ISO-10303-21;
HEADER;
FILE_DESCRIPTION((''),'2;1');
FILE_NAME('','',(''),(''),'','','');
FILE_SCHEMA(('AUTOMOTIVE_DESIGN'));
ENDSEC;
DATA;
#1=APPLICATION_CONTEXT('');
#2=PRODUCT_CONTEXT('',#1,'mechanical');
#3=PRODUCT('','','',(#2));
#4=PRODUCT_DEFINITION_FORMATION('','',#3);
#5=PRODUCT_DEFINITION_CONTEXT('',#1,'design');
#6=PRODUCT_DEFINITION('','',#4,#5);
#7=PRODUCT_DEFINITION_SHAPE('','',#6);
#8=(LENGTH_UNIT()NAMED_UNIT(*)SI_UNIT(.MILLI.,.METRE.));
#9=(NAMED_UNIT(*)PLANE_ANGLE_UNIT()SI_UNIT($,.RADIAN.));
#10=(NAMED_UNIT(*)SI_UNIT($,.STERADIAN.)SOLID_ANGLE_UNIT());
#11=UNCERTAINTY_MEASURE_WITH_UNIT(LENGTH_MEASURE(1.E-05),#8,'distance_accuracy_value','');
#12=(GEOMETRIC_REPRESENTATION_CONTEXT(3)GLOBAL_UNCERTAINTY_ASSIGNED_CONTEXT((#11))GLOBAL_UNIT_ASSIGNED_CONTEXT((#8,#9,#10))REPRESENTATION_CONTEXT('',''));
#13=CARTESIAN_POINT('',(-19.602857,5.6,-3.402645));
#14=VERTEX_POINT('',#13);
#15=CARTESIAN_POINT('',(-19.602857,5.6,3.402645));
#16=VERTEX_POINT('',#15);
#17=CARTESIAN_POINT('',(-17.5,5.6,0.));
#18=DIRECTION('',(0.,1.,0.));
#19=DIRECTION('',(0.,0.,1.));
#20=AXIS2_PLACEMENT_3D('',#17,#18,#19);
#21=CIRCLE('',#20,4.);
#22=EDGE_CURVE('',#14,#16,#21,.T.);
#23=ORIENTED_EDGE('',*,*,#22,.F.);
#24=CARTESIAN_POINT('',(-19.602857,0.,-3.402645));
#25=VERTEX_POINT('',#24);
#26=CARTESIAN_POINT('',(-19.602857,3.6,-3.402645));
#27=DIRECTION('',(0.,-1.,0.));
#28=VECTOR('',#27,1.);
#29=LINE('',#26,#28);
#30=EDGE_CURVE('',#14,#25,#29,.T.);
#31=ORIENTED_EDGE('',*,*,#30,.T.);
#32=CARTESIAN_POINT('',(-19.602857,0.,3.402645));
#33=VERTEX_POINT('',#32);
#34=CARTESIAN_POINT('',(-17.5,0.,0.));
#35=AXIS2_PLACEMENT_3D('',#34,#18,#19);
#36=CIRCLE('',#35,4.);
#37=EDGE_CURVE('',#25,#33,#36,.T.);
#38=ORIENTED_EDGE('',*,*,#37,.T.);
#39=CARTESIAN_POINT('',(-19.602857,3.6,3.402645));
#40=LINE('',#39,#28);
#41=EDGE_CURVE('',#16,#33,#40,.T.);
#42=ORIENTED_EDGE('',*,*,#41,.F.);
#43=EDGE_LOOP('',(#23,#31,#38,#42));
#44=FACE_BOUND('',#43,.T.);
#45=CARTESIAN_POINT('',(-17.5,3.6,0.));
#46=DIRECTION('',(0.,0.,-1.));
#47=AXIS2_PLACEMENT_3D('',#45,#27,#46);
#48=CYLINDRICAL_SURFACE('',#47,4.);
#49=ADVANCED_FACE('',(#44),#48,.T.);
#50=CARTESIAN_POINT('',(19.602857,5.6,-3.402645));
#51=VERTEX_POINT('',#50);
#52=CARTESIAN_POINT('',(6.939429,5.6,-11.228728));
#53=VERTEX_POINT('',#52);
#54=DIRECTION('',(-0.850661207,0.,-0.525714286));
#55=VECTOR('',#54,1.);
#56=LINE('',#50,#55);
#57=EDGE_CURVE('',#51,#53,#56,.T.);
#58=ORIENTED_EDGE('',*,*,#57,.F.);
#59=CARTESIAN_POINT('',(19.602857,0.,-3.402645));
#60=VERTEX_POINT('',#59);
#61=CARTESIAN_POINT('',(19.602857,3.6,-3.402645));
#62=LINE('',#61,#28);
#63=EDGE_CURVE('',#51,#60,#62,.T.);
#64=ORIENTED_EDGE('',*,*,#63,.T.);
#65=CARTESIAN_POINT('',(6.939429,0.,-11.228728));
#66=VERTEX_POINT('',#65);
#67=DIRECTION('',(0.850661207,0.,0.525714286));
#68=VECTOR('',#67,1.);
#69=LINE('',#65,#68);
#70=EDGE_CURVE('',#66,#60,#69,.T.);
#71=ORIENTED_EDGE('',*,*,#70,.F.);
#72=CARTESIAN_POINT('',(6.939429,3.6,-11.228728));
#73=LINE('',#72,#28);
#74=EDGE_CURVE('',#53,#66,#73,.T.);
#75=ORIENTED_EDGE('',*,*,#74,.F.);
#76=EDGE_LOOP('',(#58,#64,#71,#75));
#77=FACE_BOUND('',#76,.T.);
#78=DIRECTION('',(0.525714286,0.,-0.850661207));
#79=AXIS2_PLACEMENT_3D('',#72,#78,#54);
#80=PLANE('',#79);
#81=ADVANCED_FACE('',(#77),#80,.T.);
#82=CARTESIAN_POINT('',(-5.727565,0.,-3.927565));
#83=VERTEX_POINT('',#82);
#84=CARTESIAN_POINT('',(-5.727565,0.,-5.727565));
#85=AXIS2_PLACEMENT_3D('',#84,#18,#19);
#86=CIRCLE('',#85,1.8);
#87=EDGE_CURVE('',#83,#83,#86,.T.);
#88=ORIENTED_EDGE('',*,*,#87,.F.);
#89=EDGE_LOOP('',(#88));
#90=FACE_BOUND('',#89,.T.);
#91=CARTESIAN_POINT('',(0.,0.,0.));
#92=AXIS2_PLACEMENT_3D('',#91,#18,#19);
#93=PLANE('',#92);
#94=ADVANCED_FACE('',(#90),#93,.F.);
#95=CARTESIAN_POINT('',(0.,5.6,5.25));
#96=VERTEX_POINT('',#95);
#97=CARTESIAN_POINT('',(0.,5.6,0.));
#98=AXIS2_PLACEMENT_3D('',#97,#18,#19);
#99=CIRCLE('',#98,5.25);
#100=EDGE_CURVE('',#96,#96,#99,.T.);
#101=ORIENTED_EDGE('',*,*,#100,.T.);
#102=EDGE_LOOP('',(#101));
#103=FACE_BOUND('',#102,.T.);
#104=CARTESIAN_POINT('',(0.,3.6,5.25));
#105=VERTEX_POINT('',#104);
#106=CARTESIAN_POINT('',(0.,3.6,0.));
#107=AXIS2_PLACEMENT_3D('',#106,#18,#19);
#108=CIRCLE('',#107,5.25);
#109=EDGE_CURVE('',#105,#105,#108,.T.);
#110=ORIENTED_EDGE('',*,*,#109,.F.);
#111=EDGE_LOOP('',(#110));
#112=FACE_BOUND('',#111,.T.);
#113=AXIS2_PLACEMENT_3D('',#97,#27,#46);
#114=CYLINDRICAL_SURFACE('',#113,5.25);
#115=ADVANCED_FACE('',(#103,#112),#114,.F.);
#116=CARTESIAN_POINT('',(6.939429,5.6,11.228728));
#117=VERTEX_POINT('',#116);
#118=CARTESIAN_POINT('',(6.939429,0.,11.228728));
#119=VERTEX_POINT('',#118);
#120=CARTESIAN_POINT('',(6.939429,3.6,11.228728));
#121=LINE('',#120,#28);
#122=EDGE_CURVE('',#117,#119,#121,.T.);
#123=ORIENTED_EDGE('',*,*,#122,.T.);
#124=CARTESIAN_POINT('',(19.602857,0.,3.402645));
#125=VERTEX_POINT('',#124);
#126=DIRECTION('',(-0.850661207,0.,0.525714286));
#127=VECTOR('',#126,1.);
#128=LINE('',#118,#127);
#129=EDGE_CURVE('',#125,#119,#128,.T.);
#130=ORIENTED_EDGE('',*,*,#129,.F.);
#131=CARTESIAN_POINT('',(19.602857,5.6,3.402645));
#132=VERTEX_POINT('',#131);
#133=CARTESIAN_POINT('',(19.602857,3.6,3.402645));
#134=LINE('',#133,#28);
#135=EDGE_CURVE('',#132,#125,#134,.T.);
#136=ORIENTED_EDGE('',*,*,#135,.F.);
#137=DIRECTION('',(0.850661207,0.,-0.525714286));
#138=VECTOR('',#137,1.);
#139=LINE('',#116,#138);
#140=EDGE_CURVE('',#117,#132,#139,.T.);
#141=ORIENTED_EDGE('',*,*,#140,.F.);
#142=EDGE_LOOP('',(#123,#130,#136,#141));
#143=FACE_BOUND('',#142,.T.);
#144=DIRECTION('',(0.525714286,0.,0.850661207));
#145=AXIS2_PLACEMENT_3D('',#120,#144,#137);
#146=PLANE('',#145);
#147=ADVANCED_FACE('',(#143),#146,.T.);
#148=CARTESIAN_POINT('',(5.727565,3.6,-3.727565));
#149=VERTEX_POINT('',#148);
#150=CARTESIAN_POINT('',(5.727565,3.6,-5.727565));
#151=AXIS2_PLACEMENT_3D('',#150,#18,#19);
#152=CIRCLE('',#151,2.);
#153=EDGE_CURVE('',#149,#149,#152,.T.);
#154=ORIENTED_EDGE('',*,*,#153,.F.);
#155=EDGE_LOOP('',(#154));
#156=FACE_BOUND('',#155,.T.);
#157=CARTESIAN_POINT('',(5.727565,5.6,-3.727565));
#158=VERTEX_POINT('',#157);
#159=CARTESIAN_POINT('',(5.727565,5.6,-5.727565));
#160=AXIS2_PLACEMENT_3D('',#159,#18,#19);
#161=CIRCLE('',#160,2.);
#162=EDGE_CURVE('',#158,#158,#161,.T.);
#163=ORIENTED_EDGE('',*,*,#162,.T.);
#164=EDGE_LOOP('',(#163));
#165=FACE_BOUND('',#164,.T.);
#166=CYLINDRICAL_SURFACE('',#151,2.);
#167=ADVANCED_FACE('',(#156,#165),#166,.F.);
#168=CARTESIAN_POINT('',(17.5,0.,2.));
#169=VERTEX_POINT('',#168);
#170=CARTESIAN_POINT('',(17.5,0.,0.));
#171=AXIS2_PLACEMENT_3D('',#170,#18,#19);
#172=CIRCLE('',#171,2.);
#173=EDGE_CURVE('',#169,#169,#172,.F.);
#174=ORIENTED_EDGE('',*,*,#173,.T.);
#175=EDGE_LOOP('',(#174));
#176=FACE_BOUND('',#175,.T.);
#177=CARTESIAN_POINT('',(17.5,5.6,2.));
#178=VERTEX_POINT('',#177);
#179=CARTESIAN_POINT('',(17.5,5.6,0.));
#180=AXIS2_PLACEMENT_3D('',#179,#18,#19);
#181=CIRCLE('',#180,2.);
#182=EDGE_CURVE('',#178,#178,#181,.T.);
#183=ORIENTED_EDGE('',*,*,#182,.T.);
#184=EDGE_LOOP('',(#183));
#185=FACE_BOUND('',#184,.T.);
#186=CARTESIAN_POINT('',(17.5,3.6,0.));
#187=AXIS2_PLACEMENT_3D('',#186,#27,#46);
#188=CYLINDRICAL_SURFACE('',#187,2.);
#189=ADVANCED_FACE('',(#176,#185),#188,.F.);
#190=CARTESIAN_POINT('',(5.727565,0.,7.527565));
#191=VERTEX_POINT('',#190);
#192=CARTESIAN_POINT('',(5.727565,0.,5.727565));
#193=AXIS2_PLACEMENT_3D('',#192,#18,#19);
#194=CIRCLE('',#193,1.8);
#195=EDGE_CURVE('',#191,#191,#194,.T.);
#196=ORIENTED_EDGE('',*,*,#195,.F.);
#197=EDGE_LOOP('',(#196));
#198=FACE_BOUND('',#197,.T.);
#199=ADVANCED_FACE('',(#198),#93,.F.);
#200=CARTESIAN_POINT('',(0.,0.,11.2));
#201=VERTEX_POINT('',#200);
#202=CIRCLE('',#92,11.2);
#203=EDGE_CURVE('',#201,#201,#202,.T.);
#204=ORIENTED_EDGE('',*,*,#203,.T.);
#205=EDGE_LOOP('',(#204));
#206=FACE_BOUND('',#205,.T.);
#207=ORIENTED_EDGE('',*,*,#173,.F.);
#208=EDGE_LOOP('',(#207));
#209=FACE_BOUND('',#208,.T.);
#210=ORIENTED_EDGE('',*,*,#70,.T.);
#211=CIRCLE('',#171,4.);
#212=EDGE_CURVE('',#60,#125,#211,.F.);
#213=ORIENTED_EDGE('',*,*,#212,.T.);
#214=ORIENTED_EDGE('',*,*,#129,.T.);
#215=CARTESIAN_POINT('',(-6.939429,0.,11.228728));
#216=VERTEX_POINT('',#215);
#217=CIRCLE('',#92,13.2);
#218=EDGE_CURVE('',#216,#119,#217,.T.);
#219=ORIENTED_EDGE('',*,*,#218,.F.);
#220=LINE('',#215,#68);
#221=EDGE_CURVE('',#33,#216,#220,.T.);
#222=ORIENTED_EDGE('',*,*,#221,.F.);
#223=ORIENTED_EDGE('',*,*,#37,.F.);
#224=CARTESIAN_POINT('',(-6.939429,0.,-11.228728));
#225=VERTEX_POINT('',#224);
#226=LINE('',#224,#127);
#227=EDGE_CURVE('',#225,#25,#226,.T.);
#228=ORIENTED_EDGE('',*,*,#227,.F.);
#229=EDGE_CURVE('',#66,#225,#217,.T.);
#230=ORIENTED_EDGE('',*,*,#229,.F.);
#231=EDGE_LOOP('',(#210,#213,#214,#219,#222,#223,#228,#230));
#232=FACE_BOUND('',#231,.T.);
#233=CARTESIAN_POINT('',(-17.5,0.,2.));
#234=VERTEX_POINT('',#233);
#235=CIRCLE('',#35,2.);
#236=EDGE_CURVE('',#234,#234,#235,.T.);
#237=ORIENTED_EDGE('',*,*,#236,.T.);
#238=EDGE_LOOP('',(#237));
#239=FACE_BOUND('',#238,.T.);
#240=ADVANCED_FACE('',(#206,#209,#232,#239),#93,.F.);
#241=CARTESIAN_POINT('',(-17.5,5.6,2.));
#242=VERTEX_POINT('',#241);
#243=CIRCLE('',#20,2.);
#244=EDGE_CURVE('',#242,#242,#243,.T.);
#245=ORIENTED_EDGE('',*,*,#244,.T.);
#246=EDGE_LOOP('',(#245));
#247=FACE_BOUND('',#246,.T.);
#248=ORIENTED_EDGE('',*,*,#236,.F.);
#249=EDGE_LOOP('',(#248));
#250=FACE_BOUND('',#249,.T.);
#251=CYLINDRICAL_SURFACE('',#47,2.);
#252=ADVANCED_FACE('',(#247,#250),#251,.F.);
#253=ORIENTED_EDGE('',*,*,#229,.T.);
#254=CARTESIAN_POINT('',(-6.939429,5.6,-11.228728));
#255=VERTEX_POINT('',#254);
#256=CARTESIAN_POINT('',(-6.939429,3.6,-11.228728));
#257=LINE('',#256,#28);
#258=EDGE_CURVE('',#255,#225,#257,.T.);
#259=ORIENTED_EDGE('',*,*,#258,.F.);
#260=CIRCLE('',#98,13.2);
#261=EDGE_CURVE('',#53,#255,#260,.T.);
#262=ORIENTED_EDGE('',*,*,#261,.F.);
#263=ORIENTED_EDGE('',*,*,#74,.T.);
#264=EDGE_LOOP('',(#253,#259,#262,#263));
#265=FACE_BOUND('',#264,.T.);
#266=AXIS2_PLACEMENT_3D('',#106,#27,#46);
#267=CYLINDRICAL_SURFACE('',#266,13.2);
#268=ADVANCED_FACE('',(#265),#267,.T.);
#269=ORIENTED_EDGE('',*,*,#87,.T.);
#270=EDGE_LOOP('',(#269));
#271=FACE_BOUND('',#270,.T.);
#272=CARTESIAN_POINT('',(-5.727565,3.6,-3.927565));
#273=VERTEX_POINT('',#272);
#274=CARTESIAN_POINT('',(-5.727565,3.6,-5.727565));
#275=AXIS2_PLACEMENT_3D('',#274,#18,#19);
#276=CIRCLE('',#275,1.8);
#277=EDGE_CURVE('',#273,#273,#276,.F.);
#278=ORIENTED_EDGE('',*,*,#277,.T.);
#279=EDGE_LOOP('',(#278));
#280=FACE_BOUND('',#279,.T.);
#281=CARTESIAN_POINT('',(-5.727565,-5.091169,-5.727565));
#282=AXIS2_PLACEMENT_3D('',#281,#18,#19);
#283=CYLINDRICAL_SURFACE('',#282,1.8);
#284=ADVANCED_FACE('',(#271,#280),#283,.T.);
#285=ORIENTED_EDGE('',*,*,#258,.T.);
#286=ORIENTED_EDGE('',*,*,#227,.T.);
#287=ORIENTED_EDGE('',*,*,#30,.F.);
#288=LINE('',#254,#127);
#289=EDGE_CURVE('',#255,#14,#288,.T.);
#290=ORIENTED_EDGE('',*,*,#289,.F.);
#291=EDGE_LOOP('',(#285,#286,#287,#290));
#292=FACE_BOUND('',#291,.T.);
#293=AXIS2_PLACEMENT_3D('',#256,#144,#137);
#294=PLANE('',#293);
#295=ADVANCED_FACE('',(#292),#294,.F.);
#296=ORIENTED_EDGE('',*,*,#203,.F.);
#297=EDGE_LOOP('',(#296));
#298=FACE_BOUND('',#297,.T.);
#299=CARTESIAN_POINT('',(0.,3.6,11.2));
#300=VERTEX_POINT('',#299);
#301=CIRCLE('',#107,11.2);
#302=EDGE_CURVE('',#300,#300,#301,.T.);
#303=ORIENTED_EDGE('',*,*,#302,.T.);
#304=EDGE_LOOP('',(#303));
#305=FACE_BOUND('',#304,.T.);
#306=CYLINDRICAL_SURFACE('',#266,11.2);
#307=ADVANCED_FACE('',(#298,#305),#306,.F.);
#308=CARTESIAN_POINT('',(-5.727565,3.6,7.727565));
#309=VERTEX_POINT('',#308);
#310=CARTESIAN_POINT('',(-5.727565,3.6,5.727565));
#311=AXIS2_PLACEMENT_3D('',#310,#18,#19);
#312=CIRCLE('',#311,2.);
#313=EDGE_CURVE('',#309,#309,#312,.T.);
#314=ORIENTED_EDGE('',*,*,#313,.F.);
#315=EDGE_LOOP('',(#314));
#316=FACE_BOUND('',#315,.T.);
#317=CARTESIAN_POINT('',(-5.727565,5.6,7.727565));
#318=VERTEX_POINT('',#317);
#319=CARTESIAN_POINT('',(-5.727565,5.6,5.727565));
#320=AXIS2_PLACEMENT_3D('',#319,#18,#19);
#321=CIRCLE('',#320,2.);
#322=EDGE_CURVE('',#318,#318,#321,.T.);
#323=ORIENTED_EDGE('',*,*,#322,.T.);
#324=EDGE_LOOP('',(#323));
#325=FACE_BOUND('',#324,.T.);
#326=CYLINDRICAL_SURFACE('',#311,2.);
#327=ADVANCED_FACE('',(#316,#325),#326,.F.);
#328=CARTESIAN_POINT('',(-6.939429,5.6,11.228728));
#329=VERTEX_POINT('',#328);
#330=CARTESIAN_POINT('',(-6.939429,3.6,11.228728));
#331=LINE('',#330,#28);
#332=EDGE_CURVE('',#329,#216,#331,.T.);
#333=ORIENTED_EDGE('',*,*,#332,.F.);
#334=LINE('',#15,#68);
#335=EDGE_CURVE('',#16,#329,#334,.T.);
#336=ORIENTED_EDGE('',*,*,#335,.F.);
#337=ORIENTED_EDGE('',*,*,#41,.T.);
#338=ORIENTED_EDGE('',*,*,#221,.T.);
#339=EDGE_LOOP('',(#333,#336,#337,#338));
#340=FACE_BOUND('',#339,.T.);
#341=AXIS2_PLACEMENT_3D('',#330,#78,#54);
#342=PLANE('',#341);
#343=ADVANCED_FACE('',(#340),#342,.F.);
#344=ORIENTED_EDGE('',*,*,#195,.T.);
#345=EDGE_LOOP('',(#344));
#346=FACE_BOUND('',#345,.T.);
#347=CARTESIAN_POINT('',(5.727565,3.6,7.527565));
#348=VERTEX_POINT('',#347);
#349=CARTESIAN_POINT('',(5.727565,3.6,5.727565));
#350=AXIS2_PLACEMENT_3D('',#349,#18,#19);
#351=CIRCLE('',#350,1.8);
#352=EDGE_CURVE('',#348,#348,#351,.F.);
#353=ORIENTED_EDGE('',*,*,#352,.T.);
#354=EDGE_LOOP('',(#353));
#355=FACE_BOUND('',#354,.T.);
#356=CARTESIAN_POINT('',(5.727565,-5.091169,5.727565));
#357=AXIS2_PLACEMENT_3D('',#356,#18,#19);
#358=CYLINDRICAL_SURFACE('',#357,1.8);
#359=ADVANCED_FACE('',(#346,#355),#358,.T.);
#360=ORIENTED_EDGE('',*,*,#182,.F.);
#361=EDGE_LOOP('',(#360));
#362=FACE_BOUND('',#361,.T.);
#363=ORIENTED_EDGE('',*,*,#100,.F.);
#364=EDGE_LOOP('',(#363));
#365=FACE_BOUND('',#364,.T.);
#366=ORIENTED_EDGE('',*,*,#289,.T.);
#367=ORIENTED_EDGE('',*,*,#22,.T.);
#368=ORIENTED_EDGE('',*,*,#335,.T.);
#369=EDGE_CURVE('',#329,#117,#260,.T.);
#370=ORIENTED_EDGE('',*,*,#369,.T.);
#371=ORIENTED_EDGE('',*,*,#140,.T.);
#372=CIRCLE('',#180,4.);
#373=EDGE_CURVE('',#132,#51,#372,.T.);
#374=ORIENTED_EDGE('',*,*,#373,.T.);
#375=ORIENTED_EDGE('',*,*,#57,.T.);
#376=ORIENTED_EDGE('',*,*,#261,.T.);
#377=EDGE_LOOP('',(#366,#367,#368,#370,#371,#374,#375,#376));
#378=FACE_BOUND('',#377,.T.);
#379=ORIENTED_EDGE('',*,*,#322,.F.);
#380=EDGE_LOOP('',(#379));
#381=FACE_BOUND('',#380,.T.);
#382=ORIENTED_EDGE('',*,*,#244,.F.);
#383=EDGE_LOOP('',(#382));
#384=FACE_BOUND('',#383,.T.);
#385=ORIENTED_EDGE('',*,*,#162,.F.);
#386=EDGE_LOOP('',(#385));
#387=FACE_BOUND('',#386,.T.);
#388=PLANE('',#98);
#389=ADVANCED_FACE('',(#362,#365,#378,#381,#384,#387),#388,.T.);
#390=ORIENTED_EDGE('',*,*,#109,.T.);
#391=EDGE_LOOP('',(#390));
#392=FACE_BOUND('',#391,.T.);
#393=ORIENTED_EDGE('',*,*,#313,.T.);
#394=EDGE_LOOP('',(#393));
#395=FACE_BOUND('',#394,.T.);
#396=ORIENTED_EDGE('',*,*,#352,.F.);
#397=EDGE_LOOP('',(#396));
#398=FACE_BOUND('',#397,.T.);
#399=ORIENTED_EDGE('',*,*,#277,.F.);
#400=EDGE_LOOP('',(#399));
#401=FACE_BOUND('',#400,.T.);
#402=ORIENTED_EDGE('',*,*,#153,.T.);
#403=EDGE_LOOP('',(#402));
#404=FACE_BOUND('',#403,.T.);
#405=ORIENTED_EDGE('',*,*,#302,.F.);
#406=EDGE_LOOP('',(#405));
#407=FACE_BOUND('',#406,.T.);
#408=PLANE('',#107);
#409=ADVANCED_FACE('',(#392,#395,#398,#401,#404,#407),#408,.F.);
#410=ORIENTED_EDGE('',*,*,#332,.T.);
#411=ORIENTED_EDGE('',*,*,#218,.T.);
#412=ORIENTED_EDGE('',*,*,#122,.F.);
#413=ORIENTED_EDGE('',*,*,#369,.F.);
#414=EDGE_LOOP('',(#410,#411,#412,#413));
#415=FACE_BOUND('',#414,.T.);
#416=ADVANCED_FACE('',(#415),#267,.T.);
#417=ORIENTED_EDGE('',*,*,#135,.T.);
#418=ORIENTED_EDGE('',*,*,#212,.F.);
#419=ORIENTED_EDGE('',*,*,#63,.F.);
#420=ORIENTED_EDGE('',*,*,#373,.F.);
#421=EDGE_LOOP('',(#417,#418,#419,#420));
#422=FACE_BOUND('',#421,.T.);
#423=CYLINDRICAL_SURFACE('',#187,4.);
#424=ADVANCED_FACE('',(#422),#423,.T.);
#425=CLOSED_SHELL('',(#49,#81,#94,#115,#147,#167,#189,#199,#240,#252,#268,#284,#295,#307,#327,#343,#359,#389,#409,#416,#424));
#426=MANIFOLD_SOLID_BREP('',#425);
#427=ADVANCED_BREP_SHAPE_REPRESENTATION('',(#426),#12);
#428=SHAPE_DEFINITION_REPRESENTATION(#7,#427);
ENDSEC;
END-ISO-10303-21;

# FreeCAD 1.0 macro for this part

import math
import FreeCAD as App
import Part
import Sketcher

doc = App.newDocument("Part")
body = doc.addObject("PartDesign::Body", "Body")

sketch1 = body.newObject("Sketcher::SketchObject", "Sketch")
sketch1.AttachmentSupport = (doc.getObject("XZ_Plane"), [""])
sketch1.MapMode = "FlatFace"
sketch1.addGeometry([
    Part.LineSegment(App.Vector(-19.6, 3.4, 0), App.Vector(-6.9, 11.2, 0)),
    Part.ArcOfCircle(Part.Circle(App.Vector(0, 0, 0), App.Vector(0, 0, 1), 13.2), math.radians(58), math.radians(122)),
    Part.LineSegment(App.Vector(6.9, 11.2, 0), App.Vector(19.6, 3.4, 0)),
    Part.ArcOfCircle(Part.Circle(App.Vector(17.5, 0, 0), App.Vector(0, 0, 1), 4), math.radians(-58), math.radians(58)),
    Part.LineSegment(App.Vector(19.6, -3.4, 0), App.Vector(6.9, -11.2, 0)),
    Part.ArcOfCircle(Part.Circle(App.Vector(0, 0, 0), App.Vector(0, 0, 1), 13.2), math.radians(-122), math.radians(-58)),
    Part.LineSegment(App.Vector(-6.9, -11.2, 0), App.Vector(-19.6, -3.4, 0)),
    Part.ArcOfCircle(Part.Circle(App.Vector(-17.5, 0, 0), App.Vector(0, 0, 1), 4), math.radians(122), math.radians(238)),
    Part.Circle(App.Vector(-17.5, 0, 0), App.Vector(0, 0, 1), 2),
    Part.Circle(App.Vector(0, 0, 0), App.Vector(0, 0, 1), 11.2),
    Part.Circle(App.Vector(17.5, 0, 0), App.Vector(0, 0, 1), 2),
], False)
sketch1.addConstraint([
    Sketcher.Constraint("Tangent", 0, 2, 1, 2),
    Sketcher.Constraint("Tangent", 1, 1, 2, 1),
    Sketcher.Constraint("Tangent", 2, 2, 3, 2),
    Sketcher.Constraint("Tangent", 3, 1, 4, 1),
    Sketcher.Constraint("Tangent", 4, 2, 5, 2),
    Sketcher.Constraint("Tangent", 5, 1, 6, 1),
    Sketcher.Constraint("Tangent", 6, 2, 7, 2),
    Sketcher.Constraint("Tangent", 7, 1, 0, 1),
    Sketcher.Constraint("Coincident", 1, 3, -1, 1),
    Sketcher.Constraint("Coincident", 5, 3, -1, 1),
    Sketcher.Constraint("Coincident", 9, 3, -1, 1),
    Sketcher.Constraint("Coincident", 8, 3, 7, 3),
    Sketcher.Constraint("Coincident", 10, 3, 3, 3),
    Sketcher.Constraint("Equal", 1, 5),
    Sketcher.Constraint("Equal", 3, 7),
    Sketcher.Constraint("Equal", 8, 10),
    Sketcher.Constraint("Symmetric", 3, 3, 7, 3, -1, 1),
    Sketcher.Constraint("PointOnObject", 3, 3, -1),
    Sketcher.Constraint("Diameter", 8, 4.0),
    Sketcher.Constraint("Radius", 3, 4.0),
    Sketcher.Constraint("Diameter", 9, 22.4),
    Sketcher.Constraint("Radius", 1, 13.2),
    Sketcher.Constraint("DistanceX", 7, 3, 3, 3, 35.0),
])
pad1 = body.newObject("PartDesign::Pad", "Pad")
pad1.Profile = sketch1
pad1.Length = 3.6
pad1.Reversed = True

sketch2 = body.newObject("Sketcher::SketchObject", "Sketch001")
sketch2.AttachmentSupport = (doc.getObject("XZ_Plane"), [""])
sketch2.MapMode = "FlatFace"
sketch2.AttachmentOffset = App.Placement(App.Vector(0, 0, -3.6), App.Rotation())
sketch2.addGeometry([
    Part.LineSegment(App.Vector(-6.9, -11.2, 0), App.Vector(-19.6, -3.4, 0)),
    Part.ArcOfCircle(Part.Circle(App.Vector(-17.5, 0, 0), App.Vector(0, 0, 1), 4), math.radians(122), math.radians(238)),
    Part.LineSegment(App.Vector(-19.6, 3.4, 0), App.Vector(-6.9, 11.2, 0)),
    Part.ArcOfCircle(Part.Circle(App.Vector(0, 0, 0), App.Vector(0, 0, 1), 13.2), math.radians(58), math.radians(122)),
    Part.LineSegment(App.Vector(6.9, 11.2, 0), App.Vector(19.6, 3.4, 0)),
    Part.ArcOfCircle(Part.Circle(App.Vector(17.5, 0, 0), App.Vector(0, 0, 1), 4), math.radians(-58), math.radians(58)),
    Part.LineSegment(App.Vector(19.6, -3.4, 0), App.Vector(6.9, -11.2, 0)),
    Part.ArcOfCircle(Part.Circle(App.Vector(0, 0, 0), App.Vector(0, 0, 1), 13.2), math.radians(-122), math.radians(-58)),
    Part.Circle(App.Vector(-17.5, 0, 0), App.Vector(0, 0, 1), 2),
    Part.Circle(App.Vector(0, 0, 0), App.Vector(0, 0, 1), 5.2),
    Part.Circle(App.Vector(17.5, 0, 0), App.Vector(0, 0, 1), 2),
], False)
sketch2.addConstraint([
    Sketcher.Constraint("Tangent", 0, 2, 1, 2),
    Sketcher.Constraint("Tangent", 1, 1, 2, 1),
    Sketcher.Constraint("Tangent", 2, 2, 3, 2),
    Sketcher.Constraint("Tangent", 3, 1, 4, 1),
    Sketcher.Constraint("Tangent", 4, 2, 5, 2),
    Sketcher.Constraint("Tangent", 5, 1, 6, 1),
    Sketcher.Constraint("Tangent", 6, 2, 7, 2),
    Sketcher.Constraint("Tangent", 7, 1, 0, 1),
    Sketcher.Constraint("Coincident", 3, 3, -1, 1),
    Sketcher.Constraint("Coincident", 7, 3, -1, 1),
    Sketcher.Constraint("Coincident", 9, 3, -1, 1),
    Sketcher.Constraint("Coincident", 8, 3, 1, 3),
    Sketcher.Constraint("Coincident", 10, 3, 5, 3),
    Sketcher.Constraint("Equal", 1, 5),
    Sketcher.Constraint("Equal", 3, 7),
    Sketcher.Constraint("Equal", 8, 10),
    Sketcher.Constraint("Symmetric", 1, 3, 5, 3, -1, 1),
    Sketcher.Constraint("PointOnObject", 1, 3, -1),
    Sketcher.Constraint("Diameter", 8, 4.0),
    Sketcher.Constraint("Radius", 1, 4.0),
    Sketcher.Constraint("Diameter", 9, 10.5),
    Sketcher.Constraint("Radius", 3, 13.2),
    Sketcher.Constraint("DistanceX", 1, 3, 5, 3, 35.0),
])
pad2 = body.newObject("PartDesign::Pad", "Pad001")
pad2.Profile = sketch2
pad2.Length = 2
pad2.Reversed = True

sketch3 = body.newObject("Sketcher::SketchObject", "Sketch002")
sketch3.AttachmentSupport = (doc.getObject("XZ_Plane"), [""])
sketch3.MapMode = "FlatFace"
sketch3.AttachmentOffset = App.Placement(App.Vector(0, 0, -5.6), App.Rotation())
sketch3.addGeometry([
    Part.Circle(App.Vector(5.7, -5.7, 0), App.Vector(0, 0, 1), 2),
    Part.Circle(App.Vector(-5.7, 5.7, 0), App.Vector(0, 0, 1), 2),
], False)
sketch3.addConstraint([
    Sketcher.Constraint("Equal", 0, 1),
    Sketcher.Constraint("Symmetric", 0, 3, 1, 3, -1, 1),
    Sketcher.Constraint("Diameter", 0, 4.0),
    Sketcher.Constraint("DistanceX", 1, 3, 0, 3, 11.45513),
    Sketcher.Constraint("DistanceY", 0, 3, 1, 3, 11.45513),
])
pocket1 = body.newObject("PartDesign::Pocket", "Pocket")
pocket1.Profile = sketch3
pocket1.Length = 2
pocket1.Reversed = True

sketch4 = body.newObject("Sketcher::SketchObject", "Sketch003")
sketch4.AttachmentSupport = (doc.getObject("XZ_Plane"), [""])
sketch4.MapMode = "FlatFace"
sketch4.AttachmentOffset = App.Placement(App.Vector(0, 0, -3.6), App.Rotation())
sketch4.addGeometry([
    Part.Circle(App.Vector(5.7, 5.7, 0), App.Vector(0, 0, 1), 1.8),
    Part.Circle(App.Vector(-5.7, -5.7, 0), App.Vector(0, 0, 1), 1.8),
], False)
sketch4.addConstraint([
    Sketcher.Constraint("Equal", 0, 1),
    Sketcher.Constraint("Symmetric", 0, 3, 1, 3, -1, 1),
    Sketcher.Constraint("Diameter", 0, 3.6),
    Sketcher.Constraint("DistanceX", 1, 3, 0, 3, 11.45513),
    Sketcher.Constraint("DistanceY", 1, 3, 0, 3, 11.45513),
])
pad3 = body.newObject("PartDesign::Pad", "Pad002")
pad3.Profile = sketch4
pad3.Length = 3.6

doc.recompute()
